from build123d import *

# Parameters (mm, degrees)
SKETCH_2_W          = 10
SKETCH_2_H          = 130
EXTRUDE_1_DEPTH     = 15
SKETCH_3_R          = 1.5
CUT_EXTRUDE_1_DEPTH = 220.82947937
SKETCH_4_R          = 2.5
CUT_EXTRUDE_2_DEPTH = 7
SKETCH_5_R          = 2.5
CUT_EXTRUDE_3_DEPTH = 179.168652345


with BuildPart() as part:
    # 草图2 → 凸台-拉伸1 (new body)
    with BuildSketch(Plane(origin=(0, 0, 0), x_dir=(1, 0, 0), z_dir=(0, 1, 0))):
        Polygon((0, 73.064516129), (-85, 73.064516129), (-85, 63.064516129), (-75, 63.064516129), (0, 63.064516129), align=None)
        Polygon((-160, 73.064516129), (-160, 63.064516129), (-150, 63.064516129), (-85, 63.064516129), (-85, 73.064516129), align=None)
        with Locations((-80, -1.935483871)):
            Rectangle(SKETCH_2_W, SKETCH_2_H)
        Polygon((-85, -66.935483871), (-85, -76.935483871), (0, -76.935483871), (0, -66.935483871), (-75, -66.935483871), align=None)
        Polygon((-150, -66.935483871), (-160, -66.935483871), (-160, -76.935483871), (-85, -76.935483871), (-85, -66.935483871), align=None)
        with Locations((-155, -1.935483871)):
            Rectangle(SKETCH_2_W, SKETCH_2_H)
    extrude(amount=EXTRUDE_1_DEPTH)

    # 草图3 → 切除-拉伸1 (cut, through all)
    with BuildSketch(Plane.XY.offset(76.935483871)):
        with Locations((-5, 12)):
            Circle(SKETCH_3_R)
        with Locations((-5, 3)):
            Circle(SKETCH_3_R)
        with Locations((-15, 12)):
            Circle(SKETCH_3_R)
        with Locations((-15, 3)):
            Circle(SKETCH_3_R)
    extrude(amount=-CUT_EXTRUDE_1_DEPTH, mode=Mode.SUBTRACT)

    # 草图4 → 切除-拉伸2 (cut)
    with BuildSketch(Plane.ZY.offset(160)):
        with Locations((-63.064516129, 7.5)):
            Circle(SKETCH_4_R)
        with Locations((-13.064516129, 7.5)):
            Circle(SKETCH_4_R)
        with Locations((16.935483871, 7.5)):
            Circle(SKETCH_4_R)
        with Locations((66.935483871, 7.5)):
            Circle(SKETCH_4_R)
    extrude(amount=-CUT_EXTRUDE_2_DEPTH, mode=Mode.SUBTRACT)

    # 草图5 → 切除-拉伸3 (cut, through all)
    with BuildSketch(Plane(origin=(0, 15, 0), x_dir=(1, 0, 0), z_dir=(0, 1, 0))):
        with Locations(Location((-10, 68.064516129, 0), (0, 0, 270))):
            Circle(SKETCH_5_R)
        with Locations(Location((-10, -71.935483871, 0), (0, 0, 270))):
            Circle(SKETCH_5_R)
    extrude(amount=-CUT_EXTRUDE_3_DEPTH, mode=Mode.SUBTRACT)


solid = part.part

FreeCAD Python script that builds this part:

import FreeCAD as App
import Part
import Sketcher

doc = App.newDocument("Part")
body = doc.addObject("PartDesign::Body", "Body")

sketch1 = body.newObject("Sketcher::SketchObject", "Sketch")
sketch1.AttachmentSupport = (doc.getObject("XZ_Plane"), [""])
sketch1.MapMode = "FlatFace"
sketch1.addGeometry([
    Part.LineSegment(App.Vector(0, -73, 0), App.Vector(-160, -73, 0)),
    Part.LineSegment(App.Vector(-160, -73, 0), App.Vector(-160, 77, 0)),
    Part.LineSegment(App.Vector(-160, 77, 0), App.Vector(0, 77, 0)),
    Part.LineSegment(App.Vector(0, 77, 0), App.Vector(0, 67, 0)),
    Part.LineSegment(App.Vector(0, 67, 0), App.Vector(-75, 67, 0)),
    Part.LineSegment(App.Vector(-75, 67, 0), App.Vector(-75, -63, 0)),
    Part.LineSegment(App.Vector(-75, -63, 0), App.Vector(0, -63, 0)),
    Part.LineSegment(App.Vector(0, -63, 0), App.Vector(0, -73, 0)),
    Part.LineSegment(App.Vector(-150, -63, 0), App.Vector(-85, -63, 0)),
    Part.LineSegment(App.Vector(-85, -63, 0), App.Vector(-85, 67, 0)),
    Part.LineSegment(App.Vector(-85, 67, 0), App.Vector(-150, 67, 0)),
    Part.LineSegment(App.Vector(-150, 67, 0), App.Vector(-150, -63, 0)),
], False)
sketch1.addConstraint([
    Sketcher.Constraint("Coincident", 0, 2, 1, 1),
    Sketcher.Constraint("Coincident", 1, 2, 2, 1),
    Sketcher.Constraint("Coincident", 2, 2, 3, 1),
    Sketcher.Constraint("Coincident", 3, 2, 4, 1),
    Sketcher.Constraint("Coincident", 4, 2, 5, 1),
    Sketcher.Constraint("Coincident", 5, 2, 6, 1),
    Sketcher.Constraint("Coincident", 6, 2, 7, 1),
    Sketcher.Constraint("Coincident", 7, 2, 0, 1),
    Sketcher.Constraint("Coincident", 8, 2, 9, 1),
    Sketcher.Constraint("Coincident", 9, 2, 10, 1),
    Sketcher.Constraint("Coincident", 10, 2, 11, 1),
    Sketcher.Constraint("Coincident", 11, 2, 8, 1),
    Sketcher.Constraint("Horizontal", 0),
    Sketcher.Constraint("Vertical", 1),
    Sketcher.Constraint("Horizontal", 2),
    Sketcher.Constraint("Vertical", 3),
    Sketcher.Constraint("Horizontal", 4),
    Sketcher.Constraint("Vertical", 5),
    Sketcher.Constraint("Horizontal", 6),
    Sketcher.Constraint("Vertical", 7),
    Sketcher.Constraint("Horizontal", 8),
    Sketcher.Constraint("Vertical", 9),
    Sketcher.Constraint("Horizontal", 10),
    Sketcher.Constraint("Vertical", 11),
    Sketcher.Constraint("PointOnObject", 2, 2, -2),
    Sketcher.Constraint("PointOnObject", 6, 2, -2),
    Sketcher.Constraint("Horizontal", 6, 2, 8, 2),
    Sketcher.Constraint("Horizontal", 4, 2, 9, 2),
    Sketcher.Constraint("Equal", 3, 7),
    Sketcher.Constraint("DistanceX", 0, 2, 0, 1, 160.0),
    Sketcher.Constraint("DistanceX", 4, 2, 4, 1, 75.0),
    Sketcher.Constraint("DistanceX", 8, 1, 8, 2, 65.0),
    Sketcher.Constraint("DistanceY", 1, 1, 1, 2, 150.0),
    Sketcher.Constraint("DistanceY", 3, 2, 3, 1, 10.0),
    Sketcher.Constraint("DistanceX", 8, 2, -1, 1, 85.0),
    Sketcher.Constraint("DistanceY", 0, 2, -1, 1, 73.064516),
])
pad1 = body.newObject("PartDesign::Pad", "Pad")
pad1.Profile = sketch1
pad1.Length = 15
pad1.Reversed = True

sketch2 = body.newObject("Sketcher::SketchObject", "Sketch001")
sketch2.AttachmentSupport = (doc.getObject("XY_Plane"), [""])
sketch2.MapMode = "FlatFace"
sketch2.AttachmentOffset = App.Placement(App.Vector(0, 0, 76.935484), App.Rotation())
sketch2.addGeometry([
    Part.Circle(App.Vector(-5, 12, 0), App.Vector(0, 0, 1), 1.5),
    Part.Circle(App.Vector(-5, 3, 0), App.Vector(0, 0, 1), 1.5),
    Part.Circle(App.Vector(-15, 12, 0), App.Vector(0, 0, 1), 1.5),
    Part.Circle(App.Vector(-15, 3, 0), App.Vector(0, 0, 1), 1.5),
], False)
sketch2.addConstraint([
    Sketcher.Constraint("Equal", 0, 1),
    Sketcher.Constraint("Equal", 1, 2),
    Sketcher.Constraint("Equal", 2, 3),
    Sketcher.Constraint("Horizontal", 0, 3, 2, 3),
    Sketcher.Constraint("Horizontal", 1, 3, 3, 3),
    Sketcher.Constraint("Vertical", 0, 3, 1, 3),
    Sketcher.Constraint("Vertical", 2, 3, 3, 3),
    Sketcher.Constraint("Diameter", 0, 3.0),
    Sketcher.Constraint("DistanceX", 0, 3, -1, 1, 5.0),
    Sketcher.Constraint("DistanceY", -1, 1, 0, 3, 12.0),
    Sketcher.Constraint("DistanceY", -1, 1, 1, 3, 3.0),
    Sketcher.Constraint("DistanceX", 2, 3, -1, 1, 15.0),
])
pocket1 = body.newObject("PartDesign::Pocket", "Pocket")
pocket1.Profile = sketch2
pocket1.Type = "ThroughAll"

sketch3 = body.newObject("Sketcher::SketchObject", "Sketch002")
sketch3.AttachmentSupport = (doc.getObject("YZ_Plane"), [""])
sketch3.MapMode = "FlatFace"
sketch3.AttachmentOffset = App.Placement(App.Vector(0, 0, -160), App.Rotation())
sketch3.addGeometry([
    Part.Circle(App.Vector(7.5, -63.1, 0), App.Vector(0, 0, 1), 2.5),
    Part.Circle(App.Vector(7.5, -13.1, 0), App.Vector(0, 0, 1), 2.5),
    Part.Circle(App.Vector(7.5, 16.9, 0), App.Vector(0, 0, 1), 2.5),
    Part.Circle(App.Vector(7.5, 66.9, 0), App.Vector(0, 0, 1), 2.5),
], False)
sketch3.addConstraint([
    Sketcher.Constraint("Equal", 0, 1),
    Sketcher.Constraint("Equal", 1, 2),
    Sketcher.Constraint("Equal", 2, 3),
    Sketcher.Constraint("Vertical", 0, 3, 1, 3),
    Sketcher.Constraint("Vertical", 1, 3, 2, 3),
    Sketcher.Constraint("Vertical", 2, 3, 3, 3),
    Sketcher.Constraint("Diameter", 0, 5.0),
    Sketcher.Constraint("DistanceY", 0, 3, 1, 3, 50.0),
    Sketcher.Constraint("DistanceY", 1, 3, 2, 3, 30.0),
    Sketcher.Constraint("DistanceY", 2, 3, 3, 3, 50.0),
    Sketcher.Constraint("DistanceX", -1, 1, 0, 3, 7.5),
    Sketcher.Constraint("DistanceY", 0, 3, -1, 1, 63.064516),
])
pocket2 = body.newObject("PartDesign::Pocket", "Pocket001")
pocket2.Profile = sketch3
pocket2.Length = 7
pocket2.Reversed = True

sketch4 = body.newObject("Sketcher::SketchObject", "Sketch003")
sketch4.AttachmentSupport = (doc.getObject("XZ_Plane"), [""])
sketch4.MapMode = "FlatFace"
sketch4.AttachmentOffset = App.Placement(App.Vector(0, 0, -15), App.Rotation())
sketch4.addGeometry([
    Part.Circle(App.Vector(-10, -68.1, 0), App.Vector(0, 0, 1), 2.5),
    Part.Circle(App.Vector(-10, 71.9, 0), App.Vector(0, 0, 1), 2.5),
], False)
sketch4.addConstraint([
    Sketcher.Constraint("Equal", 0, 1),
    Sketcher.Constraint("Vertical", 0, 3, 1, 3),
    Sketcher.Constraint("Diameter", 0, 5.0),
    Sketcher.Constraint("DistanceX", 0, 3, -1, 1, 10.0),
    Sketcher.Constraint("DistanceY", 0, 3, 1, 3, 140.0),
    Sketcher.Constraint("DistanceY", 0, 3, -1, 1, 68.064516),
])
pocket3 = body.newObject("PartDesign::Pocket", "Pocket002")
pocket3.Profile = sketch4
pocket3.Type = "ThroughAll"
pocket3.Reversed = True

doc.recompute()
